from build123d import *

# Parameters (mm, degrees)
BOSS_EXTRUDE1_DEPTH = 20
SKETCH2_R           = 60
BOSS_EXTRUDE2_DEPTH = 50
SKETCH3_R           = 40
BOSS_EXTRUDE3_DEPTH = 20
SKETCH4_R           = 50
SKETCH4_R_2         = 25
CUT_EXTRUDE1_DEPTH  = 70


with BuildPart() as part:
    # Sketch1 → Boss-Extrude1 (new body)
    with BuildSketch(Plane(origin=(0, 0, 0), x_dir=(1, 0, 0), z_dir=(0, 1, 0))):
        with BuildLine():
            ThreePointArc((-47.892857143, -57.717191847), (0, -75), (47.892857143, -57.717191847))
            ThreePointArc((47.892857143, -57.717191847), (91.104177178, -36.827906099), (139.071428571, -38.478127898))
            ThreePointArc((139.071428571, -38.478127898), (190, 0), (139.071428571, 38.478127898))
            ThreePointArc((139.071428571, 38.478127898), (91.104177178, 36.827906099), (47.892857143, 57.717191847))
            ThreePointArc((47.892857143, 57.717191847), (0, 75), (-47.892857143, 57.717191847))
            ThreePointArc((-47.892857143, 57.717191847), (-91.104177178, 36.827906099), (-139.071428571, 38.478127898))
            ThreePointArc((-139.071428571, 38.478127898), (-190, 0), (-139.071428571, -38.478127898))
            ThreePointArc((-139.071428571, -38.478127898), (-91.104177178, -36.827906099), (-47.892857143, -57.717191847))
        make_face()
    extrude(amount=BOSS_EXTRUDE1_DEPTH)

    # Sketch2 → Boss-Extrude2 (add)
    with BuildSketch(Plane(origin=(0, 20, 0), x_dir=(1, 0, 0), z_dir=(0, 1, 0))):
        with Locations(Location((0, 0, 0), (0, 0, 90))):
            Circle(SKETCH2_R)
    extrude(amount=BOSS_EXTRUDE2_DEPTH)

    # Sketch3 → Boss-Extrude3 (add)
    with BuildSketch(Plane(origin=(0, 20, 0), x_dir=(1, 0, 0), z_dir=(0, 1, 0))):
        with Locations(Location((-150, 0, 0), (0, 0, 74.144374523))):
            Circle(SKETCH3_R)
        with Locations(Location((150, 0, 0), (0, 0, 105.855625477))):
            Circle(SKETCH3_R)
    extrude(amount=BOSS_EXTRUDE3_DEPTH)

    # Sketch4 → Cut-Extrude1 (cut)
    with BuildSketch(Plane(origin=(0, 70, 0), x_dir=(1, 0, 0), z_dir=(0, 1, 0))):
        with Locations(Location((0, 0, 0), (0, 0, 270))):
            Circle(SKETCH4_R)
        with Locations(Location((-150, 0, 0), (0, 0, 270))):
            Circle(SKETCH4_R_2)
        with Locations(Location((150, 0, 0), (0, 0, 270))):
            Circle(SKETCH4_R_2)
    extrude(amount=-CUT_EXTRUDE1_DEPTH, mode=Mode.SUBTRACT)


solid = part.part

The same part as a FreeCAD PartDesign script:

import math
import FreeCAD as App
import Part
import Sketcher
Q = App.Units.Quantity

doc = App.newDocument("Part")
params = doc.addObject("Spreadsheet::Sheet", "Params")
for row, (alias, value) in enumerate([
    ("sketch1_radius", "75 mm"),
    ("sketch1_radius2", "100 mm"),
    ("sketch1_radius3", "40 mm"),
    ("pad1_length", "20 mm"),
    ("sketch2_diameter", "120 mm"),
    ("pad2_length", "50 mm"),
    ("sketch3_diameter", "80 mm"),
    ("pad3_length", "20 mm"),
    ("sketch4_diameter", "100 mm"),
    ("sketch4_diameter2", "50 mm"),
    ("pocket1_length", "70 mm"),
], start=1):
    params.set(f"A{row}", alias)
    params.set(f"B{row}", "=" + value)
    params.setAlias(f"B{row}", alias)

body = doc.addObject("PartDesign::Body", "Body")

# Sketch on XZ plane
sketch1 = doc.addObject("Sketcher::SketchObject", "Sketch")
body.addObject(sketch1)
sketch1.AttachmentSupport = (doc.XZ_Plane, [""])
sketch1.MapMode = "FlatFace"
sketch1.addGeometry(Part.ArcOfCircle(Part.Circle(App.Vector(0, 0, 0), App.Vector(0, 0, 1), 75), math.radians(50.314623), math.radians(129.685377)), False)
sketch1.addGeometry(Part.ArcOfCircle(Part.Circle(App.Vector(111.75, 134.673448, 0), App.Vector(0, 0, 1), 100), math.radians(-129.685377), math.radians(-74.144375)), False)
sketch1.addGeometry(Part.ArcOfCircle(Part.Circle(App.Vector(150, 0, 0), App.Vector(0, 0, 1), 40), math.radians(-105.855625), math.radians(105.855625)), False)
sketch1.addGeometry(Part.ArcOfCircle(Part.Circle(App.Vector(111.75, -134.673448, 0), App.Vector(0, 0, 1), 100), math.radians(74.144375), math.radians(129.685377)), False)
sketch1.addGeometry(Part.ArcOfCircle(Part.Circle(App.Vector(0, 0, 0), App.Vector(0, 0, 1), 75), math.radians(-129.685377), math.radians(-50.314623)), False)
sketch1.addGeometry(Part.ArcOfCircle(Part.Circle(App.Vector(-111.75, -134.673448, 0), App.Vector(0, 0, 1), 100), math.radians(50.314623), math.radians(105.855625)), False)
sketch1.addGeometry(Part.ArcOfCircle(Part.Circle(App.Vector(-150, 0, 0), App.Vector(0, 0, 1), 40), math.radians(74.144375), math.radians(285.855625)), False)
sketch1.addGeometry(Part.ArcOfCircle(Part.Circle(App.Vector(-111.75, 134.673448, 0), App.Vector(0, 0, 1), 100), math.radians(-105.855625), math.radians(-50.314623)), False)
sketch1.addConstraint(Sketcher.Constraint("Tangent", 0, 1, 1, 1))
sketch1.addConstraint(Sketcher.Constraint("Tangent", 1, 2, 2, 2))
sketch1.addConstraint(Sketcher.Constraint("Tangent", 2, 1, 3, 1))
sketch1.addConstraint(Sketcher.Constraint("Tangent", 3, 2, 4, 2))
sketch1.addConstraint(Sketcher.Constraint("Tangent", 4, 1, 5, 1))
sketch1.addConstraint(Sketcher.Constraint("Tangent", 5, 2, 6, 2))
sketch1.addConstraint(Sketcher.Constraint("Tangent", 6, 1, 7, 1))
sketch1.addConstraint(Sketcher.Constraint("Tangent", 7, 2, 0, 2))
sketch1.addConstraint(Sketcher.Constraint("Coincident", 0, 3, -1, 1))
sketch1.addConstraint(Sketcher.Constraint("Coincident", 4, 3, -1, 1))
sketch1.addConstraint(Sketcher.Constraint("Equal", 1, 3))
sketch1.addConstraint(Sketcher.Constraint("Equal", 0, 4))
sketch1.addConstraint(Sketcher.Constraint("Equal", 3, 5))
sketch1.addConstraint(Sketcher.Constraint("Equal", 2, 6))
sketch1.addConstraint(Sketcher.Constraint("Equal", 5, 7))
sketch1.addConstraint(Sketcher.Constraint("Symmetric", 2, 3, 6, 3, -1, 1))
sketch1.addConstraint(Sketcher.Constraint("PointOnObject", 2, 3, -1))
sketch1.addConstraint(Sketcher.Constraint("Radius", 0, Q("75 mm")))
sketch1.addConstraint(Sketcher.Constraint("Radius", 1, Q("100 mm")))
sketch1.addConstraint(Sketcher.Constraint("Radius", 2, Q("40 mm")))
sketch1.addConstraint(Sketcher.Constraint("DistanceX", -1, 1, 2, 3, Q("150 mm")))
sketch1.setExpression("Constraints[17]", "Params.sketch1_radius")
sketch1.setExpression("Constraints[18]", "Params.sketch1_radius2")
sketch1.setExpression("Constraints[19]", "Params.sketch1_radius3")
pad1 = doc.addObject("PartDesign::Pad", "Pad")
body.addObject(pad1)
pad1.Profile = sketch1
pad1.setExpression("Length", "Params.pad1_length")
pad1.Reversed = True

# Sketch on XZ plane
sketch2 = doc.addObject("Sketcher::SketchObject", "Sketch001")
body.addObject(sketch2)
sketch2.AttachmentSupport = (doc.XZ_Plane, [""])
sketch2.MapMode = "FlatFace"
sketch2.AttachmentOffset = App.Placement(App.Vector(0, 0, -20), App.Rotation())
sketch2.addGeometry(Part.Circle(App.Vector(0, 0, 0), App.Vector(0, 0, 1), 60), False)
sketch2.addConstraint(Sketcher.Constraint("Coincident", 0, 3, -1, 1))
sketch2.addConstraint(Sketcher.Constraint("Diameter", 0, Q("120 mm")))
sketch2.setExpression("Constraints[1]", "Params.sketch2_diameter")
pad2 = doc.addObject("PartDesign::Pad", "Pad001")
body.addObject(pad2)
pad2.Profile = sketch2
pad2.setExpression("Length", "Params.pad2_length")
pad2.Reversed = True

# Sketch on XZ plane
sketch3 = doc.addObject("Sketcher::SketchObject", "Sketch002")
body.addObject(sketch3)
sketch3.AttachmentSupport = (doc.XZ_Plane, [""])
sketch3.MapMode = "FlatFace"
sketch3.AttachmentOffset = App.Placement(App.Vector(0, 0, -20), App.Rotation())
sketch3.addGeometry(Part.Circle(App.Vector(-150, 0, 0), App.Vector(0, 0, 1), 40), False)
sketch3.addGeometry(Part.Circle(App.Vector(150, 0, 0), App.Vector(0, 0, 1), 40), False)
sketch3.addConstraint(Sketcher.Constraint("Equal", 0, 1))
sketch3.addConstraint(Sketcher.Constraint("Symmetric", 0, 3, 1, 3, -1, 1))
sketch3.addConstraint(Sketcher.Constraint("PointOnObject", 0, 3, -1))
sketch3.addConstraint(Sketcher.Constraint("Diameter", 0, Q("80 mm")))
sketch3.addConstraint(Sketcher.Constraint("DistanceX", 0, 3, -1, 1, Q("150 mm")))
sketch3.setExpression("Constraints[3]", "Params.sketch3_diameter")
pad3 = doc.addObject("PartDesign::Pad", "Pad002")
body.addObject(pad3)
pad3.Profile = sketch3
pad3.setExpression("Length", "Params.pad3_length")
pad3.Reversed = True

# Sketch on XZ plane
sketch4 = doc.addObject("Sketcher::SketchObject", "Sketch003")
body.addObject(sketch4)
sketch4.AttachmentSupport = (doc.XZ_Plane, [""])
sketch4.MapMode = "FlatFace"
sketch4.AttachmentOffset = App.Placement(App.Vector(0, 0, -70), App.Rotation())
sketch4.addGeometry(Part.Circle(App.Vector(0, 0, 0), App.Vector(0, 0, 1), 50), False)
sketch4.addGeometry(Part.Circle(App.Vector(-150, 0, 0), App.Vector(0, 0, 1), 25), False)
sketch4.addGeometry(Part.Circle(App.Vector(150, 0, 0), App.Vector(0, 0, 1), 25), False)
sketch4.addConstraint(Sketcher.Constraint("Coincident", 0, 3, -1, 1))
sketch4.addConstraint(Sketcher.Constraint("Equal", 1, 2))
sketch4.addConstraint(Sketcher.Constraint("Symmetric", 1, 3, 2, 3, -1, 1))
sketch4.addConstraint(Sketcher.Constraint("PointOnObject", 1, 3, -1))
sketch4.addConstraint(Sketcher.Constraint("Diameter", 0, Q("100 mm")))
sketch4.addConstraint(Sketcher.Constraint("Diameter", 1, Q("50 mm")))
sketch4.addConstraint(Sketcher.Constraint("DistanceX", 1, 3, -1, 1, Q("150 mm")))
sketch4.setExpression("Constraints[4]", "Params.sketch4_diameter")
sketch4.setExpression("Constraints[5]", "Params.sketch4_diameter2")
pocket1 = doc.addObject("PartDesign::Pocket", "Pocket")
body.addObject(pocket1)
pocket1.Profile = sketch4
pocket1.setExpression("Length", "Params.pocket1_length")
pocket1.Reversed = True

doc.recompute()
